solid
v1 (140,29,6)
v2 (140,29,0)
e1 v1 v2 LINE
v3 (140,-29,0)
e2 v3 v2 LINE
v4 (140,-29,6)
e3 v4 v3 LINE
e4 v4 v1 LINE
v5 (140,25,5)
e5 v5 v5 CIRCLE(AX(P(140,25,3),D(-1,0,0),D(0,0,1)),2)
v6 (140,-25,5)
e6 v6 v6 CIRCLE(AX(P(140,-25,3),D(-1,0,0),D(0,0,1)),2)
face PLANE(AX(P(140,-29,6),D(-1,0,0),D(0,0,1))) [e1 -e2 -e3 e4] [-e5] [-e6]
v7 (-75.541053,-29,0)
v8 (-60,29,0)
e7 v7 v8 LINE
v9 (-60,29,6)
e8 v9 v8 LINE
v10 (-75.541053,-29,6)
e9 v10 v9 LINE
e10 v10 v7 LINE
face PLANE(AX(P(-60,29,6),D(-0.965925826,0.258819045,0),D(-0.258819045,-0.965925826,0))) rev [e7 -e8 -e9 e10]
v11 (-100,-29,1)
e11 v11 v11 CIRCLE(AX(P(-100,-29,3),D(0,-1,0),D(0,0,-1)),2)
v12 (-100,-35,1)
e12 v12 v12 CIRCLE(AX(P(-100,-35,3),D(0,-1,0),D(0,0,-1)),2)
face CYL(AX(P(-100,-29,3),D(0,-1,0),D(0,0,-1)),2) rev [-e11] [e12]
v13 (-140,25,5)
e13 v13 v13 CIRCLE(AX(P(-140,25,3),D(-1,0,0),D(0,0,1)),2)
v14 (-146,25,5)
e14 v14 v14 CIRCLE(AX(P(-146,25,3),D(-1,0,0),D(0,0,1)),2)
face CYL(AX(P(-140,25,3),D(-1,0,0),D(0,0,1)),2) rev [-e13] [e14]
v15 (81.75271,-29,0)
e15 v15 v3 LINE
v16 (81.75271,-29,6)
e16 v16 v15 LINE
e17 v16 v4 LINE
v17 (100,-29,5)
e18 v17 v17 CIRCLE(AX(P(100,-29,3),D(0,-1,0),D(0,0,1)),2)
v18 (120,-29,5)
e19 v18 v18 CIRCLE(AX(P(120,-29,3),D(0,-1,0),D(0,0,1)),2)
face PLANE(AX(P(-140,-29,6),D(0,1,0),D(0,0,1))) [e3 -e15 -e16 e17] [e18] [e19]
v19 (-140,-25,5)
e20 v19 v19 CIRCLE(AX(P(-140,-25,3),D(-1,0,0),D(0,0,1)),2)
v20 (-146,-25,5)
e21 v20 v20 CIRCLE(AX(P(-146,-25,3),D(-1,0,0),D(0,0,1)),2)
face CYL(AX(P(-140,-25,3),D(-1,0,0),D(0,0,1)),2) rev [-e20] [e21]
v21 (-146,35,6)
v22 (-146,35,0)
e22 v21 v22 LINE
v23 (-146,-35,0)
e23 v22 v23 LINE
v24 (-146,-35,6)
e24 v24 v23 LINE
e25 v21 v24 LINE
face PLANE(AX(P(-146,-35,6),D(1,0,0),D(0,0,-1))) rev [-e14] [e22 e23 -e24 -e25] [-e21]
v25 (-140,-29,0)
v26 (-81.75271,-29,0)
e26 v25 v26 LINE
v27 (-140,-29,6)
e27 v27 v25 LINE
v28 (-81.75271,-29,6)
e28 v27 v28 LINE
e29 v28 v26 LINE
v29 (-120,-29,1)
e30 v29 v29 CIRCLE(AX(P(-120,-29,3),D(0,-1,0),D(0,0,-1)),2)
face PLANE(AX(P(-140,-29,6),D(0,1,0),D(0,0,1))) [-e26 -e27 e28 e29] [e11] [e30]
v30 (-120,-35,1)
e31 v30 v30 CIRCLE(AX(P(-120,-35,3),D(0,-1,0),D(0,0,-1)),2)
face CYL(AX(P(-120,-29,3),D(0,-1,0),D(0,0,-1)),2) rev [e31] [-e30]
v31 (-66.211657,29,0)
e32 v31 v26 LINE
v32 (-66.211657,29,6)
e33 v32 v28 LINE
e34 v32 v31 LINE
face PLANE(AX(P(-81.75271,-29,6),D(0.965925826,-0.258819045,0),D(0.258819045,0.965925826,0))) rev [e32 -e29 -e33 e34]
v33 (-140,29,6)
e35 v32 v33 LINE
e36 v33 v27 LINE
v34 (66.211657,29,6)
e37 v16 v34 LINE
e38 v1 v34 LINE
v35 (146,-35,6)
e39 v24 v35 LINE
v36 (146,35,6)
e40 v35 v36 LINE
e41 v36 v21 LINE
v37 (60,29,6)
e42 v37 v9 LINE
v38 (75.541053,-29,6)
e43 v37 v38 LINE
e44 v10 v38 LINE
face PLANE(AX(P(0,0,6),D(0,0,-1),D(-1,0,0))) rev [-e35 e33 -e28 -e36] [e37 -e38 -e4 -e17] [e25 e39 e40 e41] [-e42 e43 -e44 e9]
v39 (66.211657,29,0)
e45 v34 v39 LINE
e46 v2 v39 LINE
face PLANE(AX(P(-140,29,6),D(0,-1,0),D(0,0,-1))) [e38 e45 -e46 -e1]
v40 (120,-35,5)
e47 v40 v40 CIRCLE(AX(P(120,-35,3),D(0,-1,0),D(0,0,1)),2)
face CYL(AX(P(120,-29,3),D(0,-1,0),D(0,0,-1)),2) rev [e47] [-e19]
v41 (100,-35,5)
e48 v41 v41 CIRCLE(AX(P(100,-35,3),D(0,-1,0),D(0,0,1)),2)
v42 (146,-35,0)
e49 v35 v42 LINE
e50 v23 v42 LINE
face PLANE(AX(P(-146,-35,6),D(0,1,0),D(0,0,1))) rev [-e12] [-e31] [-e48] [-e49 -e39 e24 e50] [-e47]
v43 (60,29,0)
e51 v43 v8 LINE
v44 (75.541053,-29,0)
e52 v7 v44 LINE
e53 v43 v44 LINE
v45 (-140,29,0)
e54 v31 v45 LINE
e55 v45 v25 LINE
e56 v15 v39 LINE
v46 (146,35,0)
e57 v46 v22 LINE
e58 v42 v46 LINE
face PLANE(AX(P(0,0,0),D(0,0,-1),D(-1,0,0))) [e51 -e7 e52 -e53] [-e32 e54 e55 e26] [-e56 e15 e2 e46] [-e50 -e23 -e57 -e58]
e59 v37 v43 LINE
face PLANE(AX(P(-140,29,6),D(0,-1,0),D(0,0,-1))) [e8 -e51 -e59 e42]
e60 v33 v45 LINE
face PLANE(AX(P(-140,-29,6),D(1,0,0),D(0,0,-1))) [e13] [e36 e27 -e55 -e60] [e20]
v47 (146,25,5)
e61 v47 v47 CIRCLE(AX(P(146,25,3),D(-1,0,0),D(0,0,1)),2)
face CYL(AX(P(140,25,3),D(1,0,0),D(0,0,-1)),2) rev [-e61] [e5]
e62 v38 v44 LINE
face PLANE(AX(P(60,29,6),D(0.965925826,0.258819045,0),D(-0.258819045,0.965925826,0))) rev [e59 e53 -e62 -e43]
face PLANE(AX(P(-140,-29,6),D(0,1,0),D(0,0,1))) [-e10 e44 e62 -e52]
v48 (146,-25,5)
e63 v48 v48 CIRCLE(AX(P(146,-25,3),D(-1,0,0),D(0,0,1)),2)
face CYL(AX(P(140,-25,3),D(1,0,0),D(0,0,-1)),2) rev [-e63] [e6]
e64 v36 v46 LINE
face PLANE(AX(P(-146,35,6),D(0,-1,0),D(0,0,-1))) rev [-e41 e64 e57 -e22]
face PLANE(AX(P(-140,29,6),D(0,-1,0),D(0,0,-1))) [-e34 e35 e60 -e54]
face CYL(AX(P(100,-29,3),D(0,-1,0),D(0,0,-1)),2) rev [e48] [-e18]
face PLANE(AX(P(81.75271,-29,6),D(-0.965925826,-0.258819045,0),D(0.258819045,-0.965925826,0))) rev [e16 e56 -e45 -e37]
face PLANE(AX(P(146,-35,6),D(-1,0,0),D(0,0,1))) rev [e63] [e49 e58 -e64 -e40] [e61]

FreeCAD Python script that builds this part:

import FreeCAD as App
import Part
import Sketcher

V = App.Vector
Q = App.Units.Quantity

doc = App.newDocument("Part")
body = doc.addObject("PartDesign::Body", "Body")

sketch1 = body.newObject("Sketcher::SketchObject", "Sketch")
sketch1.AttachmentSupport = (doc.getObject("XY_Plane"), [""])
sketch1.MapMode = "FlatFace"
sketch1.addGeometry(Part.LineSegment(V(-146, 35, 0), V(-146, -35, 0)), False)
sketch1.addGeometry(Part.LineSegment(V(-146, -35, 0), V(146, -35, 0)), False)
sketch1.addGeometry(Part.LineSegment(V(146, -35, 0), V(146, 35, 0)), False)
sketch1.addGeometry(Part.LineSegment(V(146, 35, 0), V(-146, 35, 0)), False)
sketch1.addGeometry(Part.LineSegment(V(140, -29, 0), V(-140, -29, 0)), False)
sketch1.addGeometry(Part.LineSegment(V(-140, -29, 0), V(-140, 29, 0)), False)
sketch1.addGeometry(Part.LineSegment(V(-140, 29, 0), V(140, 29, 0)), False)
sketch1.addGeometry(Part.LineSegment(V(140, 29, 0), V(140, -29, 0)), False)
sketch1.addConstraint(Sketcher.Constraint("Coincident", 0, 2, 1, 1))
sketch1.addConstraint(Sketcher.Constraint("Coincident", 1, 2, 2, 1))
sketch1.addConstraint(Sketcher.Constraint("Coincident", 2, 2, 3, 1))
sketch1.addConstraint(Sketcher.Constraint("Coincident", 3, 2, 0, 1))
sketch1.addConstraint(Sketcher.Constraint("Coincident", 4, 2, 5, 1))
sketch1.addConstraint(Sketcher.Constraint("Coincident", 5, 2, 6, 1))
sketch1.addConstraint(Sketcher.Constraint("Coincident", 6, 2, 7, 1))
sketch1.addConstraint(Sketcher.Constraint("Coincident", 7, 2, 4, 1))
sketch1.addConstraint(Sketcher.Constraint("Vertical", 0))
sketch1.addConstraint(Sketcher.Constraint("Horizontal", 1))
sketch1.addConstraint(Sketcher.Constraint("Vertical", 2))
sketch1.addConstraint(Sketcher.Constraint("Horizontal", 3))
sketch1.addConstraint(Sketcher.Constraint("Horizontal", 4))
sketch1.addConstraint(Sketcher.Constraint("Vertical", 5))
sketch1.addConstraint(Sketcher.Constraint("Horizontal", 6))
sketch1.addConstraint(Sketcher.Constraint("Vertical", 7))
sketch1.addConstraint(Sketcher.Constraint("Symmetric", 0, 2, 2, 2, -1, 1))
sketch1.addConstraint(Sketcher.Constraint("Symmetric", 4, 2, 6, 2, -1, 1))
sketch1.addConstraint(Sketcher.Constraint("DistanceX", 1, 1, 1, 2, 292.0))
sketch1.addConstraint(Sketcher.Constraint("DistanceX", 4, 2, 4, 1, 280.0))
sketch1.addConstraint(Sketcher.Constraint("DistanceY", 0, 2, 0, 1, 70.0))
sketch1.addConstraint(Sketcher.Constraint("DistanceY", 5, 1, 5, 2, 58.0))
pad1 = body.newObject("PartDesign::Pad", "Pad")
pad1.Profile = sketch1
pad1.Length = 6

sketch2 = body.newObject("Sketcher::SketchObject", "Sketch001")
sketch2.AttachmentSupport = (doc.getObject("XY_Plane"), [""])
sketch2.MapMode = "FlatFace"
sketch2.addGeometry(Part.LineSegment(V(-81.75271, -29, 0), V(-75.541053, -29, 0)), False)
sketch2.addGeometry(Part.LineSegment(V(-75.541053, -29, 0), V(-60, 29, 0)), False)
sketch2.addGeometry(Part.LineSegment(V(-60, 29, 0), V(-66.211657, 29, 0)), False)
sketch2.addGeometry(Part.LineSegment(V(-66.211657, 29, 0), V(-81.75271, -29, 0)), False)
sketch2.addGeometry(Part.LineSegment(V(75.541053, -29, 0), V(81.75271, -29, 0)), False)
sketch2.addGeometry(Part.LineSegment(V(81.75271, -29, 0), V(66.211657, 29, 0)), False)
sketch2.addGeometry(Part.LineSegment(V(66.211657, 29, 0), V(60, 29, 0)), False)
sketch2.addGeometry(Part.LineSegment(V(60, 29, 0), V(75.541053, -29, 0)), False)
sketch2.addConstraint(Sketcher.Constraint("Coincident", 0, 2, 1, 1))
sketch2.addConstraint(Sketcher.Constraint("Coincident", 1, 2, 2, 1))
sketch2.addConstraint(Sketcher.Constraint("Coincident", 2, 2, 3, 1))
sketch2.addConstraint(Sketcher.Constraint("Coincident", 3, 2, 0, 1))
sketch2.addConstraint(Sketcher.Constraint("Coincident", 4, 2, 5, 1))
sketch2.addConstraint(Sketcher.Constraint("Coincident", 5, 2, 6, 1))
sketch2.addConstraint(Sketcher.Constraint("Coincident", 6, 2, 7, 1))
sketch2.addConstraint(Sketcher.Constraint("Coincident", 7, 2, 4, 1))
sketch2.addConstraint(Sketcher.Constraint("Horizontal", 0))
sketch2.addConstraint(Sketcher.Constraint("Horizontal", 2))
sketch2.addConstraint(Sketcher.Constraint("Horizontal", 4))
sketch2.addConstraint(Sketcher.Constraint("Horizontal", 6))
sketch2.addConstraint(Sketcher.Constraint("Symmetric", 3, 2, 4, 2, -2))
sketch2.addConstraint(Sketcher.Constraint("Symmetric", 2, 2, 5, 2, -2))
sketch2.addConstraint(Sketcher.Constraint("Parallel", 1, 3))
sketch2.addConstraint(Sketcher.Constraint("Parallel", 5, 7))
sketch2.addConstraint(Sketcher.Constraint("Equal", 2, 4))
sketch2.addConstraint(Sketcher.Constraint("Angle", 1, Q("75 deg")))
sketch2.addConstraint(Sketcher.Constraint("DistanceY", 0, 2, -1, 1, 29.0))
sketch2.addConstraint(Sketcher.Constraint("DistanceX", 1, 2, -1, 1, 60.0))
sketch2.addConstraint(Sketcher.Constraint("DistanceY", -1, 1, 1, 2, 29.0))
sketch2.addConstraint(Sketcher.Constraint("DistanceX", 0, 1, 0, 2, 6.211657))
pad2 = body.newObject("PartDesign::Pad", "Pad001")
pad2.Profile = sketch2
pad2.Length = 6

sketch3 = body.newObject("Sketcher::SketchObject", "Sketch002")
sketch3.AttachmentSupport = (doc.getObject("YZ_Plane"), [""])
sketch3.MapMode = "FlatFace"
sketch3.AttachmentOffset = App.Placement(V(0, 0, -146), App.Rotation())
sketch3.addGeometry(Part.Circle(V(25, 3, 0), V(0, 0, 1), 2), False)
sketch3.addGeometry(Part.Circle(V(-25, 3, 0), V(0, 0, 1), 2), False)
sketch3.addConstraint(Sketcher.Constraint("Equal", 0, 1))
sketch3.addConstraint(Sketcher.Constraint("Symmetric", 0, 3, 1, 3, -2))
sketch3.addConstraint(Sketcher.Constraint("Diameter", 0, 4.0))
sketch3.addConstraint(Sketcher.Constraint("DistanceX", -1, 1, 0, 3, 25.0))
sketch3.addConstraint(Sketcher.Constraint("DistanceY", -1, 1, 0, 3, 3.0))
pocket1 = body.newObject("PartDesign::Pocket", "Pocket")
pocket1.Profile = sketch3
pocket1.Length = 6
pocket1.Reversed = True
doc.recompute()

mirrored = body.newObject("PartDesign::Mirrored", "Mirrored")
mirrored.Originals = [pocket1]
mirrored.MirrorPlane = (doc.getObject("YZ_Plane"), [""])
body.Tip = mirrored

sketch4 = body.newObject("Sketcher::SketchObject", "Sketch003")
sketch4.AttachmentSupport = (doc.getObject("XZ_Plane"), [""])
sketch4.MapMode = "FlatFace"
sketch4.AttachmentOffset = App.Placement(V(0, 0, 35), App.Rotation())
sketch4.addGeometry(Part.Circle(V(-120, 3, 0), V(0, 0, 1), 2), False)
sketch4.addGeometry(Part.Circle(V(-100, 3, 0), V(0, 0, 1), 2), False)
sketch4.addGeometry(Part.Circle(V(120, 3, 0), V(0, 0, 1), 2), False)
sketch4.addGeometry(Part.Circle(V(100, 3, 0), V(0, 0, 1), 2), False)
sketch4.addConstraint(Sketcher.Constraint("Equal", 0, 1))
sketch4.addConstraint(Sketcher.Constraint("Equal", 1, 2))
sketch4.addConstraint(Sketcher.Constraint("Equal", 2, 3))
sketch4.addConstraint(Sketcher.Constraint("Symmetric", 0, 3, 2, 3, -2))
sketch4.addConstraint(Sketcher.Constraint("Symmetric", 1, 3, 3, 3, -2))
sketch4.addConstraint(Sketcher.Constraint("Horizontal", 0, 3, 1, 3))
sketch4.addConstraint(Sketcher.Constraint("Diameter", 0, 4.0))
sketch4.addConstraint(Sketcher.Constraint("DistanceX", 0, 3, -1, 1, 120.0))
sketch4.addConstraint(Sketcher.Constraint("DistanceY", -1, 1, 0, 3, 3.0))
sketch4.addConstraint(Sketcher.Constraint("DistanceX", 1, 3, -1, 1, 100.0))
pocket2 = body.newObject("PartDesign::Pocket", "Pocket001")
pocket2.Profile = sketch4
pocket2.Length = 6

doc.recompute()
